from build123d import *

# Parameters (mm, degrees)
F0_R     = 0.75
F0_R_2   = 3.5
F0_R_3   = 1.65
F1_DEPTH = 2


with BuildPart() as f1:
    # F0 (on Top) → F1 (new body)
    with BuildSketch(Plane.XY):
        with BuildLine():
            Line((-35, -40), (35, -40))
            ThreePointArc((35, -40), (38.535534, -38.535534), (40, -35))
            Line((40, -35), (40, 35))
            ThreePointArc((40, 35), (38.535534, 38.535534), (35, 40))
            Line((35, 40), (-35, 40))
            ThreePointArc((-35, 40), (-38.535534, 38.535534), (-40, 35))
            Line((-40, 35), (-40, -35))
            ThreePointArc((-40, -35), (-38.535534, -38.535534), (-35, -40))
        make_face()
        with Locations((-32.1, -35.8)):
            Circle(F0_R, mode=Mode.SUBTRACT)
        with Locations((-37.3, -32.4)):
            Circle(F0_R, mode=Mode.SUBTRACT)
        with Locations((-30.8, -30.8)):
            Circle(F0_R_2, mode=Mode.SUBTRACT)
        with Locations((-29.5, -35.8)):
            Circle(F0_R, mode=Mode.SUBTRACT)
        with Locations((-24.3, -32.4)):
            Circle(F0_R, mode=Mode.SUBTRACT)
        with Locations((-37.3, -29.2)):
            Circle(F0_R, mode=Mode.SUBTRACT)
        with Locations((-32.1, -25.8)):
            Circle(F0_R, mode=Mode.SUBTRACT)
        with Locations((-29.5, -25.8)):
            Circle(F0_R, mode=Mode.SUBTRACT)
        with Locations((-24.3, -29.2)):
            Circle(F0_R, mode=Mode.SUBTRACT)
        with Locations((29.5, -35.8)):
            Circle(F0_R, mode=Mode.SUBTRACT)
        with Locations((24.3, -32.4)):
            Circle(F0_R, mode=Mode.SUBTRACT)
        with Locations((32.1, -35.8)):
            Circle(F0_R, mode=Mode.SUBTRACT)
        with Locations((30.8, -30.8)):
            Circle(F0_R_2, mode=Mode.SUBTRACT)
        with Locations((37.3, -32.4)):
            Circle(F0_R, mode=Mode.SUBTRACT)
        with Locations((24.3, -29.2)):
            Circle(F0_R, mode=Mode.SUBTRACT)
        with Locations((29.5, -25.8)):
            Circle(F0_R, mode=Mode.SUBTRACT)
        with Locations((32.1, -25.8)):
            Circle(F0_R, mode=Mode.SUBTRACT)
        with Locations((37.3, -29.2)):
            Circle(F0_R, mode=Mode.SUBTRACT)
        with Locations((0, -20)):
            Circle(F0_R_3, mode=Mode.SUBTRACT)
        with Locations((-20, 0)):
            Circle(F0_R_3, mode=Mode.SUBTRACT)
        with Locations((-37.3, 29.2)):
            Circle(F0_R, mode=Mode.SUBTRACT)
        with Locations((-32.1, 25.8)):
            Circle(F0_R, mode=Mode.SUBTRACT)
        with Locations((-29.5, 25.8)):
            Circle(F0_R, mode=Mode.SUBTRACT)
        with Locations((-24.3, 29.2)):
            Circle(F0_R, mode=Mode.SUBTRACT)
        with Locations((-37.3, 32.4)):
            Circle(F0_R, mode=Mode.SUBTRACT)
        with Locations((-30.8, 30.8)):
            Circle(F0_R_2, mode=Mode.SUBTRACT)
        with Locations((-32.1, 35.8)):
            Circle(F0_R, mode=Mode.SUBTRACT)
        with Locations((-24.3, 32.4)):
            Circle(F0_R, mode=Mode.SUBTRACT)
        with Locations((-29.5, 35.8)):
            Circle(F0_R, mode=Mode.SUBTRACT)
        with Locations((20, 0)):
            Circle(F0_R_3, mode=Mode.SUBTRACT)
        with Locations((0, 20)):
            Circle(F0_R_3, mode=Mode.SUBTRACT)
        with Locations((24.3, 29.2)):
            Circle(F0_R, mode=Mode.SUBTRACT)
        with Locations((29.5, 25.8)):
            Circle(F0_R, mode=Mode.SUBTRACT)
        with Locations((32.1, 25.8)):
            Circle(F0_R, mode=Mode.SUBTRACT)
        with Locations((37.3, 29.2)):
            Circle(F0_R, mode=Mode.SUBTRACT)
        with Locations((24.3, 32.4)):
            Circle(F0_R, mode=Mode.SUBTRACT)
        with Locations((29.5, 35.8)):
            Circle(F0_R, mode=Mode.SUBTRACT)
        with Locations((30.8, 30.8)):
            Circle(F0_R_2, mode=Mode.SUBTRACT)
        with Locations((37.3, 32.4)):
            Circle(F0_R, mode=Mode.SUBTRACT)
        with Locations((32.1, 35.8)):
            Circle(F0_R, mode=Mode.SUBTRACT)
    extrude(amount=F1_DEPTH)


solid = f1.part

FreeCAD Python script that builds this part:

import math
import FreeCAD as App
import Part
import Sketcher
from FreeCAD import Vector
Q = App.Units.Quantity

doc = App.newDocument("Part")
params = doc.addObject("Spreadsheet::Sheet", "Params")
for row, (alias, value) in enumerate([
    ("sketch1_diameter", "7 mm"),
    ("sketch1_radius", "5 mm"),
    ("sketch1_diameter2", "1.5 mm"),
    ("sketch1_diameter3", "3.3 mm"),
    ("sketch1_width", "70 mm"),
    ("pad1_length", "2 mm"),
], start=1):
    params.set(f"A{row}", alias)
    params.set(f"B{row}", "=" + value)
    params.setAlias(f"B{row}", alias)

body = doc.addObject("PartDesign::Body", "Body")

# Sketch on XY plane
sketch1 = body.newObject("Sketcher::SketchObject", "Sketch")
sketch1.AttachmentSupport = (doc.getObject("XY_Plane"), [""])
sketch1.MapMode = "FlatFace"
sketch1.addGeometry(Part.LineSegment(Vector(-35, -40, 0), Vector(35, -40, 0)), False)
sketch1.addGeometry(Part.ArcOfCircle(Part.Circle(Vector(35, -35, 0), Vector(0, 0, 1), 5), math.radians(-90.000004), math.radians(0.000004)), False)
sketch1.addGeometry(Part.LineSegment(Vector(40, -35, 0), Vector(40, 35, 0)), False)
sketch1.addGeometry(Part.ArcOfCircle(Part.Circle(Vector(35, 35, 0), Vector(0, 0, 1), 5), math.radians(-0.000004), math.radians(90.000004)), False)
sketch1.addGeometry(Part.LineSegment(Vector(35, 40, 0), Vector(-35, 40, 0)), False)
sketch1.addGeometry(Part.ArcOfCircle(Part.Circle(Vector(-35, 35, 0), Vector(0, 0, 1), 5), math.radians(89.999996), math.radians(180.000004)), False)
sketch1.addGeometry(Part.LineSegment(Vector(-40, 35, 0), Vector(-40, -35, 0)), False)
sketch1.addGeometry(Part.ArcOfCircle(Part.Circle(Vector(-35, -35, 0), Vector(0, 0, 1), 5), math.radians(179.999996), math.radians(270.000004)), False)
sketch1.addGeometry(Part.Circle(Vector(-37.3, -32.4, 0), Vector(0, 0, 1), 0.75), False)
sketch1.addGeometry(Part.Circle(Vector(-32.1, -35.8, 0), Vector(0, 0, 1), 0.75), False)
sketch1.addGeometry(Part.Circle(Vector(-29.5, -35.8, 0), Vector(0, 0, 1), 0.75), False)
sketch1.addGeometry(Part.Circle(Vector(-37.3, -29.2, 0), Vector(0, 0, 1), 0.75), False)
sketch1.addGeometry(Part.Circle(Vector(-30.8, -30.8, 0), Vector(0, 0, 1), 3.5), False)
sketch1.addGeometry(Part.Circle(Vector(-24.3, -32.4, 0), Vector(0, 0, 1), 0.75), False)
sketch1.addGeometry(Part.Circle(Vector(-24.3, -29.2, 0), Vector(0, 0, 1), 0.75), False)
sketch1.addGeometry(Part.Circle(Vector(-32.1, -25.8, 0), Vector(0, 0, 1), 0.75), False)
sketch1.addGeometry(Part.Circle(Vector(-29.5, -25.8, 0), Vector(0, 0, 1), 0.75), False)
sketch1.addGeometry(Part.Circle(Vector(0, -20, 0), Vector(0, 0, 1), 1.65), False)
sketch1.addGeometry(Part.Circle(Vector(24.3, -32.4, 0), Vector(0, 0, 1), 0.75), False)
sketch1.addGeometry(Part.Circle(Vector(24.3, -29.2, 0), Vector(0, 0, 1), 0.75), False)
sketch1.addGeometry(Part.Circle(Vector(29.5, -35.8, 0), Vector(0, 0, 1), 0.75), False)
sketch1.addGeometry(Part.Circle(Vector(32.1, -35.8, 0), Vector(0, 0, 1), 0.75), False)
sketch1.addGeometry(Part.Circle(Vector(37.3, -32.4, 0), Vector(0, 0, 1), 0.75), False)
sketch1.addGeometry(Part.Circle(Vector(30.8, -30.8, 0), Vector(0, 0, 1), 3.5), False)
sketch1.addGeometry(Part.Circle(Vector(37.3, -29.2, 0), Vector(0, 0, 1), 0.75), False)
sketch1.addGeometry(Part.Circle(Vector(29.5, -25.8, 0), Vector(0, 0, 1), 0.75), False)
sketch1.addGeometry(Part.Circle(Vector(32.1, -25.8, 0), Vector(0, 0, 1), 0.75), False)
sketch1.addGeometry(Part.Circle(Vector(-20, 0, 0), Vector(0, 0, 1), 1.65), False)
sketch1.addGeometry(Part.Circle(Vector(-32.1, 25.8, 0), Vector(0, 0, 1), 0.75), False)
sketch1.addGeometry(Part.Circle(Vector(-29.5, 25.8, 0), Vector(0, 0, 1), 0.75), False)
sketch1.addGeometry(Part.Circle(Vector(-37.3, 29.2, 0), Vector(0, 0, 1), 0.75), False)
sketch1.addGeometry(Part.Circle(Vector(-30.8, 30.8, 0), Vector(0, 0, 1), 3.5), False)
sketch1.addGeometry(Part.Circle(Vector(-37.3, 32.4, 0), Vector(0, 0, 1), 0.75), False)
sketch1.addGeometry(Part.Circle(Vector(-32.1, 35.8, 0), Vector(0, 0, 1), 0.75), False)
sketch1.addGeometry(Part.Circle(Vector(-29.5, 35.8, 0), Vector(0, 0, 1), 0.75), False)
sketch1.addGeometry(Part.Circle(Vector(-24.3, 29.2, 0), Vector(0, 0, 1), 0.75), False)
sketch1.addGeometry(Part.Circle(Vector(-24.3, 32.4, 0), Vector(0, 0, 1), 0.75), False)
sketch1.addGeometry(Part.Circle(Vector(20, 0, 0), Vector(0, 0, 1), 1.65), False)
sketch1.addGeometry(Part.Circle(Vector(0, 20, 0), Vector(0, 0, 1), 1.65), False)
sketch1.addGeometry(Part.Circle(Vector(29.5, 25.8, 0), Vector(0, 0, 1), 0.75), False)
sketch1.addGeometry(Part.Circle(Vector(32.1, 25.8, 0), Vector(0, 0, 1), 0.75), False)
sketch1.addGeometry(Part.Circle(Vector(24.3, 29.2, 0), Vector(0, 0, 1), 0.75), False)
sketch1.addGeometry(Part.Circle(Vector(24.3, 32.4, 0), Vector(0, 0, 1), 0.75), False)
sketch1.addGeometry(Part.Circle(Vector(30.8, 30.8, 0), Vector(0, 0, 1), 3.5), False)
sketch1.addGeometry(Part.Circle(Vector(37.3, 29.2, 0), Vector(0, 0, 1), 0.75), False)
sketch1.addGeometry(Part.Circle(Vector(29.5, 35.8, 0), Vector(0, 0, 1), 0.75), False)
sketch1.addGeometry(Part.Circle(Vector(32.1, 35.8, 0), Vector(0, 0, 1), 0.75), False)
sketch1.addGeometry(Part.Circle(Vector(37.3, 32.4, 0), Vector(0, 0, 1), 0.75), False)
sketch1.addConstraint(Sketcher.Constraint("Tangent", 0, 2, 1, 1))
sketch1.addConstraint(Sketcher.Constraint("Tangent", 1, 2, 2, 1))
sketch1.addConstraint(Sketcher.Constraint("Tangent", 2, 2, 3, 1))
sketch1.addConstraint(Sketcher.Constraint("Tangent", 3, 2, 4, 1))
sketch1.addConstraint(Sketcher.Constraint("Tangent", 4, 2, 5, 1))
sketch1.addConstraint(Sketcher.Constraint("Tangent", 5, 2, 6, 1))
sketch1.addConstraint(Sketcher.Constraint("Tangent", 6, 2, 7, 1))
sketch1.addConstraint(Sketcher.Constraint("Tangent", 7, 2, 0, 1))
sketch1.addConstraint(Sketcher.Constraint("Horizontal", 0))
sketch1.addConstraint(Sketcher.Constraint("Vertical", 2))
sketch1.addConstraint(Sketcher.Constraint("Horizontal", 4))
sketch1.addConstraint(Sketcher.Constraint("Vertical", 6))
sketch1.addConstraint(Sketcher.Constraint("Equal", 1, 3))
sketch1.addConstraint(Sketcher.Constraint("Equal", 3, 5))
sketch1.addConstraint(Sketcher.Constraint("Equal", 5, 7))
sketch1.addConstraint(Sketcher.Constraint("Equal", 8, 9))
sketch1.addConstraint(Sketcher.Constraint("Equal", 9, 10))
sketch1.addConstraint(Sketcher.Constraint("Equal", 10, 11))
sketch1.addConstraint(Sketcher.Constraint("Equal", 11, 13))
sketch1.addConstraint(Sketcher.Constraint("Equal", 13, 14))
sketch1.addConstraint(Sketcher.Constraint("Equal", 14, 15))
sketch1.addConstraint(Sketcher.Constraint("Equal", 15, 16))
sketch1.addConstraint(Sketcher.Constraint("Equal", 16, 18))
sketch1.addConstraint(Sketcher.Constraint("Equal", 18, 19))
sketch1.addConstraint(Sketcher.Constraint("Equal", 19, 20))
sketch1.addConstraint(Sketcher.Constraint("Equal", 20, 21))
sketch1.addConstraint(Sketcher.Constraint("Equal", 21, 22))
sketch1.addConstraint(Sketcher.Constraint("Equal", 12, 23))
sketch1.addConstraint(Sketcher.Constraint("Equal", 22, 24))
sketch1.addConstraint(Sketcher.Constraint("Equal", 24, 25))
sketch1.addConstraint(Sketcher.Constraint("Equal", 25, 26))
sketch1.addConstraint(Sketcher.Constraint("Equal", 17, 27))
sketch1.addConstraint(Sketcher.Constraint("Equal", 26, 28))
sketch1.addConstraint(Sketcher.Constraint("Equal", 28, 29))
sketch1.addConstraint(Sketcher.Constraint("Equal", 29, 30))
sketch1.addConstraint(Sketcher.Constraint("Equal", 23, 31))
sketch1.addConstraint(Sketcher.Constraint("Equal", 30, 32))
sketch1.addConstraint(Sketcher.Constraint("Equal", 32, 33))
sketch1.addConstraint(Sketcher.Constraint("Equal", 33, 34))
sketch1.addConstraint(Sketcher.Constraint("Equal", 34, 35))
sketch1.addConstraint(Sketcher.Constraint("Equal", 35, 36))
sketch1.addConstraint(Sketcher.Constraint("Equal", 27, 37))
sketch1.addConstraint(Sketcher.Constraint("Equal", 37, 38))
sketch1.addConstraint(Sketcher.Constraint("Equal", 36, 39))
sketch1.addConstraint(Sketcher.Constraint("Equal", 39, 40))
sketch1.addConstraint(Sketcher.Constraint("Equal", 40, 41))
sketch1.addConstraint(Sketcher.Constraint("Equal", 41, 42))
sketch1.addConstraint(Sketcher.Constraint("Equal", 31, 43))
sketch1.addConstraint(Sketcher.Constraint("Equal", 42, 44))
sketch1.addConstraint(Sketcher.Constraint("Equal", 44, 45))
sketch1.addConstraint(Sketcher.Constraint("Equal", 45, 46))
sketch1.addConstraint(Sketcher.Constraint("Equal", 46, 47))
sketch1.addConstraint(Sketcher.Constraint("Symmetric", 1, 3, 5, 3, -1, 1))
sketch1.addConstraint(Sketcher.Constraint("Symmetric", 26, 3, 28, 3, -1, 1))
sketch1.addConstraint(Sketcher.Constraint("Symmetric", 25, 3, 29, 3, -1, 1))
sketch1.addConstraint(Sketcher.Constraint("Symmetric", 24, 3, 30, 3, -1, 1))
sketch1.addConstraint(Sketcher.Constraint("Symmetric", 23, 3, 31, 3, -1, 1))
sketch1.addConstraint(Sketcher.Constraint("Symmetric", 22, 3, 32, 3, -1, 1))
sketch1.addConstraint(Sketcher.Constraint("Symmetric", 21, 3, 33, 3, -1, 1))
sketch1.addConstraint(Sketcher.Constraint("Symmetric", 20, 3, 34, 3, -1, 1))
sketch1.addConstraint(Sketcher.Constraint("Symmetric", 19, 3, 35, 3, -1, 1))
sketch1.addConstraint(Sketcher.Constraint("Symmetric", 18, 3, 36, 3, -1, 1))
sketch1.addConstraint(Sketcher.Constraint("Symmetric", 27, 3, 37, 3, -1, 1))
sketch1.addConstraint(Sketcher.Constraint("Symmetric", 17, 3, 38, 3, -1, 1))
sketch1.addConstraint(Sketcher.Constraint("Symmetric", 16, 3, 39, 3, -1, 1))
sketch1.addConstraint(Sketcher.Constraint("Symmetric", 15, 3, 40, 3, -1, 1))
sketch1.addConstraint(Sketcher.Constraint("Symmetric", 14, 3, 41, 3, -1, 1))
sketch1.addConstraint(Sketcher.Constraint("Symmetric", 13, 3, 42, 3, -1, 1))
sketch1.addConstraint(Sketcher.Constraint("Symmetric", 12, 3, 43, 3, -1, 1))
sketch1.addConstraint(Sketcher.Constraint("Symmetric", 11, 3, 44, 3, -1, 1))
sketch1.addConstraint(Sketcher.Constraint("Symmetric", 10, 3, 45, 3, -1, 1))
sketch1.addConstraint(Sketcher.Constraint("Symmetric", 9, 3, 46, 3, -1, 1))
sketch1.addConstraint(Sketcher.Constraint("Symmetric", 8, 3, 47, 3, -1, 1))
sketch1.addConstraint(Sketcher.Constraint("Symmetric", 13, 3, 18, 3, -2))
sketch1.addConstraint(Sketcher.Constraint("Symmetric", 14, 3, 19, 3, -2))
sketch1.addConstraint(Sketcher.Constraint("Symmetric", 10, 3, 20, 3, -2))
sketch1.addConstraint(Sketcher.Constraint("Symmetric", 9, 3, 21, 3, -2))
sketch1.addConstraint(Sketcher.Constraint("Symmetric", 8, 3, 22, 3, -2))
sketch1.addConstraint(Sketcher.Constraint("Symmetric", 12, 3, 23, 3, -2))
sketch1.addConstraint(Sketcher.Constraint("Symmetric", 11, 3, 24, 3, -2))
sketch1.addConstraint(Sketcher.Constraint("Symmetric", 16, 3, 25, 3, -2))
sketch1.addConstraint(Sketcher.Constraint("Symmetric", 15, 3, 26, 3, -2))
sketch1.addConstraint(Sketcher.Constraint("PointOnObject", 17, 3, -2))
sketch1.addConstraint(Sketcher.Constraint("PointOnObject", 27, 3, -1))
sketch1.addConstraint(Sketcher.Constraint("Horizontal", 9, 3, 10, 3))
sketch1.addConstraint(Sketcher.Constraint("Horizontal", 8, 3, 13, 3))
sketch1.addConstraint(Sketcher.Constraint("Horizontal", 11, 3, 14, 3))
sketch1.addConstraint(Sketcher.Constraint("Horizontal", 15, 3, 16, 3))
sketch1.addConstraint(Sketcher.Constraint("Vertical", 8, 3, 11, 3))
sketch1.addConstraint(Sketcher.Constraint("Vertical", 13, 3, 14, 3))
sketch1.addConstraint(Sketcher.Constraint("Vertical", 9, 3, 15, 3))
sketch1.addConstraint(Sketcher.Constraint("Vertical", 10, 3, 16, 3))
sketch1.addConstraint(Sketcher.Constraint("Equal", 4, 2))
sketch1.addConstraint(Sketcher.Constraint("Diameter", 12, Q("7 mm")))
sketch1.addConstraint(Sketcher.Constraint("Radius", 1, Q("5 mm")))
sketch1.addConstraint(Sketcher.Constraint("Diameter", 8, Q("1.5 mm")))
sketch1.addConstraint(Sketcher.Constraint("Diameter", 17, Q("3.3 mm")))
sketch1.addConstraint(Sketcher.Constraint("DistanceX", 0, 1, 0, 2, Q("70 mm")))
sketch1.addConstraint(Sketcher.Constraint("DistanceY", 17, 3, -1, 1, Q("20 mm")))
sketch1.addConstraint(Sketcher.Constraint("DistanceX", 27, 3, -1, 1, Q("20 mm")))
sketch1.addConstraint(Sketcher.Constraint("DistanceY", 9, 3, 12, 3, Q("5 mm")))
sketch1.addConstraint(Sketcher.Constraint("DistanceX", 8, 3, 13, 3, Q("13 mm")))
sketch1.addConstraint(Sketcher.Constraint("DistanceY", 12, 3, 15, 3, Q("5 mm")))
sketch1.addConstraint(Sketcher.Constraint("DistanceY", 11, 3, 28, 3, Q("55 mm")))
sketch1.addConstraint(Sketcher.Constraint("DistanceX", 8, 3, -1, 1, Q("37.3 mm")))
sketch1.addConstraint(Sketcher.Constraint("DistanceY", 8, 3, -1, 1, Q("32.4 mm")))
sketch1.addConstraint(Sketcher.Constraint("DistanceX", 9, 3, -1, 1, Q("32.1 mm")))
sketch1.addConstraint(Sketcher.Constraint("DistanceY", 9, 3, -1, 1, Q("35.8 mm")))
sketch1.addConstraint(Sketcher.Constraint("DistanceX", 10, 3, -1, 1, Q("29.5 mm")))
sketch1.addConstraint(Sketcher.Constraint("DistanceX", 12, 3, -1, 1, Q("30.8 mm")))
sketch1.setExpression("Constraints[93]", "Params.sketch1_diameter")
sketch1.setExpression("Constraints[94]", "Params.sketch1_radius")
sketch1.setExpression("Constraints[95]", "Params.sketch1_diameter2")
sketch1.setExpression("Constraints[96]", "Params.sketch1_diameter3")
sketch1.setExpression("Constraints[97]", "Params.sketch1_width")
pad1 = body.newObject("PartDesign::Pad", "Pad")
pad1.Profile = sketch1
pad1.setExpression("Length", "Params.pad1_length")

doc.recompute()
